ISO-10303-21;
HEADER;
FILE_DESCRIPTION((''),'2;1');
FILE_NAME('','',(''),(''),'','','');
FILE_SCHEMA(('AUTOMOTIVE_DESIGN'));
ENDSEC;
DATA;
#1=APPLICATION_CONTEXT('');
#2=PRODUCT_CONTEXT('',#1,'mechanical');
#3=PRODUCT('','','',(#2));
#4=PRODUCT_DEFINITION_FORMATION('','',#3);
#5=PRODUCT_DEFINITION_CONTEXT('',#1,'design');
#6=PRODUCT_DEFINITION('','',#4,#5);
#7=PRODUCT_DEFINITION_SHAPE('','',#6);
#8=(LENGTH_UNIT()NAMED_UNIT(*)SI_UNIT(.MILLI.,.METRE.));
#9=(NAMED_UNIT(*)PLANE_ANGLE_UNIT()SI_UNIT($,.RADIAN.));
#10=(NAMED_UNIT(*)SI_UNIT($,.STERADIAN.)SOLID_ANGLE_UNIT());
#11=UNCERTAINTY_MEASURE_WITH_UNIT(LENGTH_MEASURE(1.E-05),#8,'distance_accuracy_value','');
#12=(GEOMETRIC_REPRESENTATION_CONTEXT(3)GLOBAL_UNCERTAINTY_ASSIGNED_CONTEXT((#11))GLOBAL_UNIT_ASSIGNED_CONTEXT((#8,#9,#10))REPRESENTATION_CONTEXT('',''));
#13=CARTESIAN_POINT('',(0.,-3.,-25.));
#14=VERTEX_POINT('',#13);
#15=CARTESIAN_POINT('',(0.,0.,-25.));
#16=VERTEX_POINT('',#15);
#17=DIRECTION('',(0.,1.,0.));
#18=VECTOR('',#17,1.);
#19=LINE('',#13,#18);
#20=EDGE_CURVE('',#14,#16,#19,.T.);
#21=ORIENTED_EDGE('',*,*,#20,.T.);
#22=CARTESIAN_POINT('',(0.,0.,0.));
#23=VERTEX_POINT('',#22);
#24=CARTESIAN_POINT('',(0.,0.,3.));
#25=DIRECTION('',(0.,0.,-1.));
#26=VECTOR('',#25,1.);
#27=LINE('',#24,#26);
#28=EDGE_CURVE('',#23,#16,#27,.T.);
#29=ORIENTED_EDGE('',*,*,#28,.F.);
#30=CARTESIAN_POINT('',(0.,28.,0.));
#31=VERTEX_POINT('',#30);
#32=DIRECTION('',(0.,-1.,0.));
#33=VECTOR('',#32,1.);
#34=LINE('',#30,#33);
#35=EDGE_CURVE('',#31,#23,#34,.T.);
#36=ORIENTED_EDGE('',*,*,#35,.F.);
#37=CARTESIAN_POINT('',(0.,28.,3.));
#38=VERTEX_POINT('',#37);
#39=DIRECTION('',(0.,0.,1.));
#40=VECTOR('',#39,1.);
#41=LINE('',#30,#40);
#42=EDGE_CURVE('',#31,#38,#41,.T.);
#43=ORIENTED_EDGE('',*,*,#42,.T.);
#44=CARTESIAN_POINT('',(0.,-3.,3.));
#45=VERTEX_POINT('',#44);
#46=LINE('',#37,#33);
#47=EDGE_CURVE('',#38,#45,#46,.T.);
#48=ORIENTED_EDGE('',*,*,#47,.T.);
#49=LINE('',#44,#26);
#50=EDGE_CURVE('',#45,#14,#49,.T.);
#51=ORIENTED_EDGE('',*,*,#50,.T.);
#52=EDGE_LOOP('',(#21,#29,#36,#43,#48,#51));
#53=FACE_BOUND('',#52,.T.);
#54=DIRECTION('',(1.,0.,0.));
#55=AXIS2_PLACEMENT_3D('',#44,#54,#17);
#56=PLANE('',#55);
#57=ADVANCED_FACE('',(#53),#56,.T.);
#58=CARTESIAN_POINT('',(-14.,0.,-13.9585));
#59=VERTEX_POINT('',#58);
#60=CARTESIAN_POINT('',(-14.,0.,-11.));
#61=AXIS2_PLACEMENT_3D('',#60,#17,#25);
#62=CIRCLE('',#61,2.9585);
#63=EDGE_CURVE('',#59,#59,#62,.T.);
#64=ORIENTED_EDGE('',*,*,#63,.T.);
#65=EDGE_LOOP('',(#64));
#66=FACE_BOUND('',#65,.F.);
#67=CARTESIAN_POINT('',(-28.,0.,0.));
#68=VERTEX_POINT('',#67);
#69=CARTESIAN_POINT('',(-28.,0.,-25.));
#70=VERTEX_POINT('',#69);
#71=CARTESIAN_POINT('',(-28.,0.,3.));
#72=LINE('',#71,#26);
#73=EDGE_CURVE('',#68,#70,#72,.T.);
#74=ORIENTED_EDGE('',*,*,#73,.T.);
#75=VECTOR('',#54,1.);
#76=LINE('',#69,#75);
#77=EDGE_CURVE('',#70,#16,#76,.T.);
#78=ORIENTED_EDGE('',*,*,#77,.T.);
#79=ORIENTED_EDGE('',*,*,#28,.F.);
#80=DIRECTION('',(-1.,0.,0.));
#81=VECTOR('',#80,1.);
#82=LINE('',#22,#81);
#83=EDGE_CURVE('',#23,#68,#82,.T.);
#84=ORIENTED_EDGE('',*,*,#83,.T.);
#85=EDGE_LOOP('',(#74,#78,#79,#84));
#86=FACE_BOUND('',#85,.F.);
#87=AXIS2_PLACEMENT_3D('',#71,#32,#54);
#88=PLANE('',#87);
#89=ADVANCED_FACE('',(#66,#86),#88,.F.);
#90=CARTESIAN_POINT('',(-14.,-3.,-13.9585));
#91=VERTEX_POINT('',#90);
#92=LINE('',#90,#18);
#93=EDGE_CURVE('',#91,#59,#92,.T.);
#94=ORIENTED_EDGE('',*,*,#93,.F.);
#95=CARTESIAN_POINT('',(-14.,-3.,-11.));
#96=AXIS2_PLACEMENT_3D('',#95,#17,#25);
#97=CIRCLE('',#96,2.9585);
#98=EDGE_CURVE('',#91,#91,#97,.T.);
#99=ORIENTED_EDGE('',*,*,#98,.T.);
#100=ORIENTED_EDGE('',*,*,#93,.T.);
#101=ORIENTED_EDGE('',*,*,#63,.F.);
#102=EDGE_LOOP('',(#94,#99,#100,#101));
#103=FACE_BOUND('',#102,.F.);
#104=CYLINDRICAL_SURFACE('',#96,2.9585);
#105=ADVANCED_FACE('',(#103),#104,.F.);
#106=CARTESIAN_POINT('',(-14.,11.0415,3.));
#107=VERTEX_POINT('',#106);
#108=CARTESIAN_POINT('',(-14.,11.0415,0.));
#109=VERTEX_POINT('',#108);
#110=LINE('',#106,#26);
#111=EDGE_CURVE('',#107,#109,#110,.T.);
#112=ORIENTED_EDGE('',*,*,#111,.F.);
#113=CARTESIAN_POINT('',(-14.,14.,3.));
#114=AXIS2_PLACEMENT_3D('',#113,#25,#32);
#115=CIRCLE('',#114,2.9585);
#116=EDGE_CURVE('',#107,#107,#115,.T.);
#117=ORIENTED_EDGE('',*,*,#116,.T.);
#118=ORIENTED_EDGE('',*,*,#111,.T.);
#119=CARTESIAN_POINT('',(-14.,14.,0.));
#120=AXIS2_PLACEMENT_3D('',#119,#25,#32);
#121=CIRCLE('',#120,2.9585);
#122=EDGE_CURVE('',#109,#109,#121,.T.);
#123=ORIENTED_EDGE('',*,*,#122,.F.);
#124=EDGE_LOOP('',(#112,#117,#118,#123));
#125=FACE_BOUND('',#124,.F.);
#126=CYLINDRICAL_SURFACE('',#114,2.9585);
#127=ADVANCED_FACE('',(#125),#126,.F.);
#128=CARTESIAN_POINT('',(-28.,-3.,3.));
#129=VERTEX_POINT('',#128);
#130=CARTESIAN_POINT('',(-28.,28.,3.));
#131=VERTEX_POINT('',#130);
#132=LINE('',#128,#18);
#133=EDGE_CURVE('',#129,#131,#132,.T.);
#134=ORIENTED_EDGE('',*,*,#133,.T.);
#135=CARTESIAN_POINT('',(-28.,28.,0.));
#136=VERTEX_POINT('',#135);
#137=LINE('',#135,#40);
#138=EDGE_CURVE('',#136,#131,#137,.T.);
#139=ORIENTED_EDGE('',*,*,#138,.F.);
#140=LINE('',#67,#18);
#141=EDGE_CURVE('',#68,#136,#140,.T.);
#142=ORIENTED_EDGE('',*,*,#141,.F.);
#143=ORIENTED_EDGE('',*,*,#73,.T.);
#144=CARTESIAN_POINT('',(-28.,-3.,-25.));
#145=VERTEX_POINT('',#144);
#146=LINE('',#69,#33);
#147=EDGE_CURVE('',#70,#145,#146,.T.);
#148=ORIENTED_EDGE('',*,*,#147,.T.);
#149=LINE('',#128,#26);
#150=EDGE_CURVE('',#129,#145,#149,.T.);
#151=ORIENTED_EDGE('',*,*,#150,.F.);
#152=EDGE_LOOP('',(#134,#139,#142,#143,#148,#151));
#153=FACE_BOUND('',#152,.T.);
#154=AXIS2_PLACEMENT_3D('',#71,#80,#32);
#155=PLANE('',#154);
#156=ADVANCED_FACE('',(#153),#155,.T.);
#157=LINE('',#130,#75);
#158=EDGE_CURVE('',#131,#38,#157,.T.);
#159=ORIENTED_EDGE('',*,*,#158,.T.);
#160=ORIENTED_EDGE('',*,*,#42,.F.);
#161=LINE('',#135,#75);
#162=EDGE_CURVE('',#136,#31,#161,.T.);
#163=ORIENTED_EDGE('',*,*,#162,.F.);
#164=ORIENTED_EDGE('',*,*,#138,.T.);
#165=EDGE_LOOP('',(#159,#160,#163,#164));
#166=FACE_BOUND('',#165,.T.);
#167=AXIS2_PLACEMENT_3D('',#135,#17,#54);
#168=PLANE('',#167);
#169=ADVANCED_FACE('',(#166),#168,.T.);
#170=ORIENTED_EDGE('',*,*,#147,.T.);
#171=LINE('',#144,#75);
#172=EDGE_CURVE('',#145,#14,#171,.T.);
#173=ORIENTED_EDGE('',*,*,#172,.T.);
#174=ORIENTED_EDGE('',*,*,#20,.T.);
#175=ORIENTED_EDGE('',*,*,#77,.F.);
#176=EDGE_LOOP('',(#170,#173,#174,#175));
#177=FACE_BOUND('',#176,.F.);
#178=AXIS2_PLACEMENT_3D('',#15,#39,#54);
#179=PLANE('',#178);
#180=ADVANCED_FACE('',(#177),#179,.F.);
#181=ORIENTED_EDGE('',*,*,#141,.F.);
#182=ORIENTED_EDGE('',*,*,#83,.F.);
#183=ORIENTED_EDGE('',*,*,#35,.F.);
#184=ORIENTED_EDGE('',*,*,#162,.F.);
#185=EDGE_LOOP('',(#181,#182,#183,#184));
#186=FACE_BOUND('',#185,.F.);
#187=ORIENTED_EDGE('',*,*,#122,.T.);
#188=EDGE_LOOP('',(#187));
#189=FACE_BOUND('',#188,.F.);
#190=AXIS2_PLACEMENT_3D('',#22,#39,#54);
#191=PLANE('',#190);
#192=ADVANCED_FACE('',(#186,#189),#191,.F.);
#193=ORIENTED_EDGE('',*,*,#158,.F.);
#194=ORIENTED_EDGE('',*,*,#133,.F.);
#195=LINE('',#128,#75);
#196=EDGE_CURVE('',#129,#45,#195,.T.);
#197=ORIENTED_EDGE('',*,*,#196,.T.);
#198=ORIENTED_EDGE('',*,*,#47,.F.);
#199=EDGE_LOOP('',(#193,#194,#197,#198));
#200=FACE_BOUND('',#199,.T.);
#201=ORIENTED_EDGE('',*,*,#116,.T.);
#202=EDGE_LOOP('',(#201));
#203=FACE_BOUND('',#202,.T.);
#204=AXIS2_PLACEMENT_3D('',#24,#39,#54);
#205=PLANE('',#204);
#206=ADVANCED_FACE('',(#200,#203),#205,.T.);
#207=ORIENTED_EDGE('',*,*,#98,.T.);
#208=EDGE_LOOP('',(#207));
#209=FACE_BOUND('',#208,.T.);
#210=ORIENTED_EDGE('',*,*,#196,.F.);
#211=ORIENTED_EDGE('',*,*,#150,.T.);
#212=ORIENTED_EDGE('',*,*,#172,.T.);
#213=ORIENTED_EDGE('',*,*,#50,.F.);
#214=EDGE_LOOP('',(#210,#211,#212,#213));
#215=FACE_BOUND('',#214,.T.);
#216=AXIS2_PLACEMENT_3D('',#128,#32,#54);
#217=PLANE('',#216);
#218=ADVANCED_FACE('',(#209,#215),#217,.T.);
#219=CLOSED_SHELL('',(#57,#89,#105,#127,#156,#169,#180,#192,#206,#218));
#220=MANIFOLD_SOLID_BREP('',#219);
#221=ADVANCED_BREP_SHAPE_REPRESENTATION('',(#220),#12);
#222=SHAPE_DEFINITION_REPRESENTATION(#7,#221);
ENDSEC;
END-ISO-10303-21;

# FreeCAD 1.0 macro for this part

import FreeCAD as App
import Part
import Sketcher

V = App.Vector


def add_polygon(sketch, points):
    """Adds a closed chain of lines whose ends are joined by coincident constraints."""
    first, n = sketch.GeometryCount, len(points)
    for a, b in zip(points, points[1:] + points[:1]):
        sketch.addGeometry(Part.LineSegment(App.Vector(*a, 0), App.Vector(*b, 0)), False)
    for i in range(n):
        sketch.addConstraint(Sketcher.Constraint("Coincident", first + i, 2, first + (i + 1) % n, 1))

doc = App.newDocument("Part")
params = doc.addObject("Spreadsheet::Sheet", "Params")
for row, (alias, value) in enumerate([
    ("sketch1_width", "28 mm"),
    ("pad1_length", "3 mm"),
    ("hole_diameter", "5.917 mm"),
    ("hole_depth", "19.1 mm"),
    ("sketch3_height", "3 mm"),
    ("sketch3_width", "28 mm"),
    ("pad2_length", "28 mm"),
    ("hole2_diameter", "5.917 mm"),
    ("hole2_depth", "19.1 mm"),
], start=1):
    params.set(f"A{row}", alias)
    params.set(f"B{row}", "=" + value)
    params.setAlias(f"B{row}", alias)

body = doc.addObject("PartDesign::Body", "Body")

# Sketch on XY plane
sketch1 = body.newObject("Sketcher::SketchObject", "Sketch")
sketch1.AttachmentSupport = (doc.getObject("XY_Plane"), [""])
sketch1.MapMode = "FlatFace"
add_polygon(sketch1, [(0, 28), (-28, 28), (-28, 0), (0, 0)])  # lines 0-3
sketch1.addConstraint([
    Sketcher.Constraint("Horizontal", 0),
    Sketcher.Constraint("Vertical", 1),
    Sketcher.Constraint("Horizontal", 2),
    Sketcher.Constraint("Vertical", 3),
    Sketcher.Constraint("Coincident", 2, 2, -1, 1),
    Sketcher.Constraint("Equal", 2, 1),
    Sketcher.Constraint("DistanceX", 0, 2, 0, 1, 28.0),
])
sketch1.setExpression("Constraints[10]", "Params.sketch1_width")
pad1 = body.newObject("PartDesign::Pad", "Pad")
pad1.Profile = sketch1
pad1.setExpression("Length", "Params.pad1_length")

# Sketch on XY plane
sketch2 = body.newObject("Sketcher::SketchObject", "Sketch001")
sketch2.AttachmentSupport = (doc.getObject("XY_Plane"), [""])
sketch2.MapMode = "FlatFace"
sketch2.AttachmentOffset = App.Placement(V(0, 0, 3), App.Rotation())
sketch2.addGeometry(Part.Circle(V(-14, 14, 0), V(0, 0, 1), 2.9585), False)
sketch2.addConstraint([
    Sketcher.Constraint("Diameter", 0, 5.917),
    Sketcher.Constraint("DistanceX", 0, 3, -1, 1, 14.0),
    Sketcher.Constraint("DistanceY", -1, 1, 0, 3, 14.0),
])
doc.recompute()
hole = body.newObject("PartDesign::Hole", "Hole")
hole.Profile = sketch2
hole.ThreadType = "None"
hole.setExpression("Diameter", "Params.hole_diameter")
hole.DepthType = "Dimension"
hole.setExpression("Depth", "Params.hole_depth")
hole.DrillPoint = "Angled"
hole.DrillPointAngle = 118

# Sketch on XY plane
sketch3 = body.newObject("Sketcher::SketchObject", "Sketch002")
sketch3.AttachmentSupport = (doc.getObject("XY_Plane"), [""])
sketch3.MapMode = "FlatFace"
sketch3.AttachmentOffset = App.Placement(V(0, 0, 3), App.Rotation())
add_polygon(sketch3, [(0, 0), (-28, 0), (-28, -3), (0, -3)])  # lines 0-3
sketch3.addConstraint([
    Sketcher.Constraint("Horizontal", 0),
    Sketcher.Constraint("Vertical", 1),
    Sketcher.Constraint("Horizontal", 2),
    Sketcher.Constraint("Vertical", 3),
    Sketcher.Constraint("Coincident", 3, 2, -1, 1),
    Sketcher.Constraint("DistanceY", 1, 2, 1, 1, 3.0),
    Sketcher.Constraint("DistanceX", 0, 2, 0, 1, 28.0),
])
sketch3.setExpression("Constraints[9]", "Params.sketch3_height")
sketch3.setExpression("Constraints[10]", "Params.sketch3_width")
pad2 = body.newObject("PartDesign::Pad", "Pad001")
pad2.Profile = sketch3
pad2.setExpression("Length", "Params.pad2_length")
pad2.Reversed = True

# Sketch on XZ plane
sketch4 = body.newObject("Sketcher::SketchObject", "Sketch003")
sketch4.AttachmentSupport = (doc.getObject("XZ_Plane"), [""])
sketch4.MapMode = "FlatFace"
sketch4.AttachmentOffset = App.Placement(V(0, 0, 3), App.Rotation())
sketch4.addGeometry(Part.Circle(V(-14, -11, 0), V(0, 0, 1), 2.9585), False)
sketch4.addConstraint([
    Sketcher.Constraint("Diameter", 0, 5.917),
    Sketcher.Constraint("DistanceX", 0, 3, -1, 1, 14.0),
    Sketcher.Constraint("DistanceY", 0, 3, -1, 1, 11.0),
])
doc.recompute()
hole2 = body.newObject("PartDesign::Hole", "Hole001")
hole2.Profile = sketch4
hole2.ThreadType = "None"
hole2.setExpression("Diameter", "Params.hole2_diameter")
hole2.DepthType = "Dimension"
hole2.setExpression("Depth", "Params.hole2_depth")
hole2.DrillPoint = "Angled"
hole2.DrillPointAngle = 118

doc.recompute()
